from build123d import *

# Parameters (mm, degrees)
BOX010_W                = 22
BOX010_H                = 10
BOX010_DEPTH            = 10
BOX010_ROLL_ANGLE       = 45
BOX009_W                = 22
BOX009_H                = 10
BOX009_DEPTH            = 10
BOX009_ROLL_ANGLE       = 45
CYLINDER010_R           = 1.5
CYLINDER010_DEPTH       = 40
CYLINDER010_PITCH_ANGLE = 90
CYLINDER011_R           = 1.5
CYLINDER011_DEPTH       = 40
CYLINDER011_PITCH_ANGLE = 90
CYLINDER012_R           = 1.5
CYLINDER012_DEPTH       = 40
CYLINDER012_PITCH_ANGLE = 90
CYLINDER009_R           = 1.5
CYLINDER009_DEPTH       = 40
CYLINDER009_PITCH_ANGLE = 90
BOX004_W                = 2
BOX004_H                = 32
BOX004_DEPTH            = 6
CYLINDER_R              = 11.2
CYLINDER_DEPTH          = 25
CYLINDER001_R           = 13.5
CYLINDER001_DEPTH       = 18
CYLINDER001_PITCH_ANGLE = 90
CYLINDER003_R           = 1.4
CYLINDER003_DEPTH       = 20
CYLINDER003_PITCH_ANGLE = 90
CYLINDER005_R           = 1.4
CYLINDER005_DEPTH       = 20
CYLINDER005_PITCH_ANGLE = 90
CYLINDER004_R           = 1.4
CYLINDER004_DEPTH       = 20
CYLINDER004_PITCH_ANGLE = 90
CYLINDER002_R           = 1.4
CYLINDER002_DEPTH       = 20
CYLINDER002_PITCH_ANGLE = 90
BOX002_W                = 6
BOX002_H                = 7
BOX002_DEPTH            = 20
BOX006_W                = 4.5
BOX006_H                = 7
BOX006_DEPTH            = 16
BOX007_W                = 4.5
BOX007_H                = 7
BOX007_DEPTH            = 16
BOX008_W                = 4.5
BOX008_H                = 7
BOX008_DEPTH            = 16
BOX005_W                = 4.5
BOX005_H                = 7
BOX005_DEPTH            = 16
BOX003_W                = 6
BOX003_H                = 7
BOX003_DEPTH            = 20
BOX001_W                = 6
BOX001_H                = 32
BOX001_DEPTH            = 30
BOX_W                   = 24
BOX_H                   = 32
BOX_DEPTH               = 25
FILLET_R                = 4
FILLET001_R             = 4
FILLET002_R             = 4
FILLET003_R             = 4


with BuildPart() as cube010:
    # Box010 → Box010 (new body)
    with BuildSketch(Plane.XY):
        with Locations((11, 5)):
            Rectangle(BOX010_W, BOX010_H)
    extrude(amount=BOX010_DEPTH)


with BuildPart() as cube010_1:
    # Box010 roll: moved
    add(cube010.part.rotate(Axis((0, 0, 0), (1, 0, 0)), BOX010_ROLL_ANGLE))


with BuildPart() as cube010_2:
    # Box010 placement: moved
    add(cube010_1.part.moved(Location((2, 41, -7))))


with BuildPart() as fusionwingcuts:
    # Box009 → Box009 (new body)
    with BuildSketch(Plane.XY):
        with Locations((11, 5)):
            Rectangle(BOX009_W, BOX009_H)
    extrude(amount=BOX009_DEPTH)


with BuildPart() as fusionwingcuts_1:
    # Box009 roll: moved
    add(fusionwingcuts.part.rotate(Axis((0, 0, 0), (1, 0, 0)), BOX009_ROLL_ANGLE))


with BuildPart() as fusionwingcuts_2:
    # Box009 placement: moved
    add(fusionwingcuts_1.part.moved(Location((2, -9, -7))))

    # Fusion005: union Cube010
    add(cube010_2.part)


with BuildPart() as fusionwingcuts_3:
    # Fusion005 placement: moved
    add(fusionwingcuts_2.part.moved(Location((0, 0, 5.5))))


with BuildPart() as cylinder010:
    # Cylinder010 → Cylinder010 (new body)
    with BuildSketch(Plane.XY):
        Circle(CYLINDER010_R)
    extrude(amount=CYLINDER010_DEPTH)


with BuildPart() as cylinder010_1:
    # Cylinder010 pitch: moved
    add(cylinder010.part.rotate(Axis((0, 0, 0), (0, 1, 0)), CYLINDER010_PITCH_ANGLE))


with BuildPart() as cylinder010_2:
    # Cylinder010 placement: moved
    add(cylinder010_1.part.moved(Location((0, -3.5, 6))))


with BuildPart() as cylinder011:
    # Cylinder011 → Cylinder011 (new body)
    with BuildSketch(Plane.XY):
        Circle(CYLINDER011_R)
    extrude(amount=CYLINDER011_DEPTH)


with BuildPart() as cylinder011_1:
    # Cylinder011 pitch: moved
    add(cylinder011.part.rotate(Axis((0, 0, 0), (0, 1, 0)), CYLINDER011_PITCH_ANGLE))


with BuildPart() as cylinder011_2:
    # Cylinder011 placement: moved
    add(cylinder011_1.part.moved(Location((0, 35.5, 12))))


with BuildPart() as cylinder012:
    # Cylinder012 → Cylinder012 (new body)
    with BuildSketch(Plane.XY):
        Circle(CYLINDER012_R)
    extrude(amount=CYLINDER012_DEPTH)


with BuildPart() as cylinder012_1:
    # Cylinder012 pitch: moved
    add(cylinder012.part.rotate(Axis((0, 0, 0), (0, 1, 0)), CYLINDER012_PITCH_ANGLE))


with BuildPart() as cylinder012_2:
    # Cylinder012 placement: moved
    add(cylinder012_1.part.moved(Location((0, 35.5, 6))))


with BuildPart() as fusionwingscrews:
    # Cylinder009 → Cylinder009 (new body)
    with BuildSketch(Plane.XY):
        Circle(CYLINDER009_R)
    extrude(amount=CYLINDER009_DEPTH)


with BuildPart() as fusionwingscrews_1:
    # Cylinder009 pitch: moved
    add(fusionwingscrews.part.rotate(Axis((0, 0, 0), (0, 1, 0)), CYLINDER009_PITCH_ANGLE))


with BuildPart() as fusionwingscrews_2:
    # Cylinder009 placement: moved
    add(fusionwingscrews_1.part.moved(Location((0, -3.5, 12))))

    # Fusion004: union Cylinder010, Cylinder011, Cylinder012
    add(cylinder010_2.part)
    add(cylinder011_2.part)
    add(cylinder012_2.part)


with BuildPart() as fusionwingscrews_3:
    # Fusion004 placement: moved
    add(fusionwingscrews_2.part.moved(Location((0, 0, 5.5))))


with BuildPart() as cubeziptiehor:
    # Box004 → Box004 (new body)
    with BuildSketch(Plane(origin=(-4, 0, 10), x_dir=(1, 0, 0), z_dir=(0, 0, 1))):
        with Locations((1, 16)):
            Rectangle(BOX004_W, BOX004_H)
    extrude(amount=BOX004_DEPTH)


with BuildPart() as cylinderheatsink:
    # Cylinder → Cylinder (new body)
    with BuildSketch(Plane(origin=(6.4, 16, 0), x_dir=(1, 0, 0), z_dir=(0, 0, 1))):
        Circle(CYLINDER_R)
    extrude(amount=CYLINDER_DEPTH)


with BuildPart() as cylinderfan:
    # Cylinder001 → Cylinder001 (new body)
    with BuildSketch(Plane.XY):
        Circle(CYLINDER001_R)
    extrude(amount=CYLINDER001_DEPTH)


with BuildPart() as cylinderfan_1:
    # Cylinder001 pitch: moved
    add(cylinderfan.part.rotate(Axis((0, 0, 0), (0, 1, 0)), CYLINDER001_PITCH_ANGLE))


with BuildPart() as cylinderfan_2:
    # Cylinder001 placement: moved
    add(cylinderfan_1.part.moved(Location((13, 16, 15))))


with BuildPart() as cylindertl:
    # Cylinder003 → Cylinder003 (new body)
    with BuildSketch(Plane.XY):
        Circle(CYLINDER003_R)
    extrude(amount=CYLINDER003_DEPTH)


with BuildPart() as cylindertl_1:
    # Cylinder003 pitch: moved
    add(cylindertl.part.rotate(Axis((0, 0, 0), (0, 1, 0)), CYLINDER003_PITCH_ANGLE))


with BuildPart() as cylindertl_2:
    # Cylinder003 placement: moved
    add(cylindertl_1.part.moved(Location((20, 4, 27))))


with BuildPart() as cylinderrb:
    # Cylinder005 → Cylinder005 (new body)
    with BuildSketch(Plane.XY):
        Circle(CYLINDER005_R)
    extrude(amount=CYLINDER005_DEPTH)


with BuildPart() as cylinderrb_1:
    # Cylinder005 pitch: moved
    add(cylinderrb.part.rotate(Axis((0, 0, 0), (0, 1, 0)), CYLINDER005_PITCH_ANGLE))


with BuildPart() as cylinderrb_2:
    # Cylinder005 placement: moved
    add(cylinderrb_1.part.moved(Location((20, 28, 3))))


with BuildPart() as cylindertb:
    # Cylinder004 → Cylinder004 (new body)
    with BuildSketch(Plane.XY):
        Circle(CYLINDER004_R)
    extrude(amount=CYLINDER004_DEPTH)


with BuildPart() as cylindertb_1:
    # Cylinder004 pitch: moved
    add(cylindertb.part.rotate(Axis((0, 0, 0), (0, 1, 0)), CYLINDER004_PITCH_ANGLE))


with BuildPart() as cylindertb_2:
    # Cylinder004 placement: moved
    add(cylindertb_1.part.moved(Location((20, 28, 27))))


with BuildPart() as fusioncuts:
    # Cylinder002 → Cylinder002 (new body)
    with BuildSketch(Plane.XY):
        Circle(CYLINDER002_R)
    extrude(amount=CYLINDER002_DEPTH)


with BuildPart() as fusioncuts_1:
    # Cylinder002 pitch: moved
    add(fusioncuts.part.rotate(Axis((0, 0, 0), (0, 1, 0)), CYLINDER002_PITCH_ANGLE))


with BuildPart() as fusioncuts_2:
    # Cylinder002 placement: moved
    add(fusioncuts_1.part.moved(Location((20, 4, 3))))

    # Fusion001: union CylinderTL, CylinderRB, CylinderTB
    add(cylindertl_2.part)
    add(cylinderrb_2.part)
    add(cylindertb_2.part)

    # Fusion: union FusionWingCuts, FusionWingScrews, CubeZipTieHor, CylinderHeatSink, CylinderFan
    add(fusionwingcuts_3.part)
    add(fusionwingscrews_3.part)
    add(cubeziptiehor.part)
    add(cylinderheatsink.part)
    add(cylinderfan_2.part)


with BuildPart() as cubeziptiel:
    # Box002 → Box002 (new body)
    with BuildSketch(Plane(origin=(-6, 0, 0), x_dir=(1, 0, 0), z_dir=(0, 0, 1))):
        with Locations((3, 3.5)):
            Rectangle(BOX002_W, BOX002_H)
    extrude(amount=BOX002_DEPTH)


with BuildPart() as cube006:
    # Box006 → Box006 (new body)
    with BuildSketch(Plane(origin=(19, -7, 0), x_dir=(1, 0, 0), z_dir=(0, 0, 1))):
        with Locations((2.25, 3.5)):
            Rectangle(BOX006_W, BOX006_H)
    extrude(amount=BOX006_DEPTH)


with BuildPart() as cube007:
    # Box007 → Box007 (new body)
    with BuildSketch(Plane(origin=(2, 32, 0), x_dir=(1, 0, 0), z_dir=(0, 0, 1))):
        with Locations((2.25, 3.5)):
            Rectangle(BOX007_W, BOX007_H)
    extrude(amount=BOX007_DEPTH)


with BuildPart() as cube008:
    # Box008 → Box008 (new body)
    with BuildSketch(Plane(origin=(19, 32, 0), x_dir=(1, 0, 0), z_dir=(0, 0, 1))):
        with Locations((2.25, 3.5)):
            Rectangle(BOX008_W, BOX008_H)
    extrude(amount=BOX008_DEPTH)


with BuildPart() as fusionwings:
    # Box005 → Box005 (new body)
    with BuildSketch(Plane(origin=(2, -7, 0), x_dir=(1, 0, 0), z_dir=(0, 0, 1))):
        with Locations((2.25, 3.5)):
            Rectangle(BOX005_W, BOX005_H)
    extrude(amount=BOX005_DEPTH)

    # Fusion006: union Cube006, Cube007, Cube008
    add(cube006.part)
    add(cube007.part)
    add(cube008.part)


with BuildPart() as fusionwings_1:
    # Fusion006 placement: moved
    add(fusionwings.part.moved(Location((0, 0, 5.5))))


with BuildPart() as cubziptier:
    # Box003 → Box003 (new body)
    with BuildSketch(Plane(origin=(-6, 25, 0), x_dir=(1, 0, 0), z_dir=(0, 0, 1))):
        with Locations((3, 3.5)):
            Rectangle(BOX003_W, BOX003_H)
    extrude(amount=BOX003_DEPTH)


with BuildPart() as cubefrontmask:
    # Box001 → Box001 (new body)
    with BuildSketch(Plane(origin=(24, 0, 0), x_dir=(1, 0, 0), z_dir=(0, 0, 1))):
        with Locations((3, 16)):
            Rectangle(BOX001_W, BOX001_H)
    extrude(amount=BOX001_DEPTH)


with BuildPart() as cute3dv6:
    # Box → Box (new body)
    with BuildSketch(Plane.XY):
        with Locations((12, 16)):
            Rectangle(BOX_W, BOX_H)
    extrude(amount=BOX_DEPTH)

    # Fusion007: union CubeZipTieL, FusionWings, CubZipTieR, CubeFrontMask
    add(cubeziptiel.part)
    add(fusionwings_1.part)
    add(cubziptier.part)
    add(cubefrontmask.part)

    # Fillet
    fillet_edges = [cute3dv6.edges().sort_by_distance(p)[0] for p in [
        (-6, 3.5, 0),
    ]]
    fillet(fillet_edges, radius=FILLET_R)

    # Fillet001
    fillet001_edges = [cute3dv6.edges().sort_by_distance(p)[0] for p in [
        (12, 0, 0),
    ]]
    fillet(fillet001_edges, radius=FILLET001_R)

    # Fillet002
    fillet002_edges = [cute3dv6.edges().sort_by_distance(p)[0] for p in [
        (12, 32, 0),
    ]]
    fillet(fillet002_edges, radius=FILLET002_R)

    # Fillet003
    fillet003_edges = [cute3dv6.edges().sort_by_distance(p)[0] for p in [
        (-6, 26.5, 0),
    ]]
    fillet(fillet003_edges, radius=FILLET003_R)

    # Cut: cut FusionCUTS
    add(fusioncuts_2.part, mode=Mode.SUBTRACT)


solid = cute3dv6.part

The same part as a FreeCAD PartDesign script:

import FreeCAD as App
import Part
import Sketcher

V = App.Vector


def edges_at(feature, points):
    """Names of the edges that pass closest to the given points."""
    edges = feature.Shape.Edges
    near = lambda p: min(range(len(edges)), key=lambda i: edges[i].distToShape(Part.Vertex(*p))[0])
    return sorted({f"Edge{near(p) + 1}" for p in points})

doc = App.newDocument("Part")
body = doc.addObject("PartDesign::Body", "Body")

# Sketch on XY plane
sketch1 = body.newObject("Sketcher::SketchObject", "Sketch")
sketch1.AttachmentSupport = (doc.getObject("XY_Plane"), [""])
sketch1.MapMode = "FlatFace"
sketch1.addGeometry(Part.LineSegment(V(0, 10, 0), V(0, 0, 0)), False)
sketch1.addGeometry(Part.LineSegment(V(0, 0, 0), V(22, 0, 0)), False)
sketch1.addGeometry(Part.LineSegment(V(22, 0, 0), V(22, 10, 0)), False)
sketch1.addGeometry(Part.LineSegment(V(22, 10, 0), V(0, 10, 0)), False)
sketch1.addConstraint(Sketcher.Constraint("Coincident", 0, 2, 1, 1))
sketch1.addConstraint(Sketcher.Constraint("Coincident", 1, 2, 2, 1))
sketch1.addConstraint(Sketcher.Constraint("Coincident", 2, 2, 3, 1))
sketch1.addConstraint(Sketcher.Constraint("Coincident", 3, 2, 0, 1))
sketch1.addConstraint(Sketcher.Constraint("Vertical", 0))
sketch1.addConstraint(Sketcher.Constraint("Horizontal", 1))
sketch1.addConstraint(Sketcher.Constraint("Vertical", 2))
sketch1.addConstraint(Sketcher.Constraint("Horizontal", 3))
sketch1.addConstraint(Sketcher.Constraint("Coincident", 0, 2, -1, 1))
sketch1.addConstraint(Sketcher.Constraint("DistanceX", 1, 1, 1, 2, 22.0))
sketch1.addConstraint(Sketcher.Constraint("DistanceY", 0, 2, 0, 1, 10.0))
pad1 = body.newObject("PartDesign::Pad", "Pad")
pad1.Profile = sketch1
pad1.Length = 10
body2 = doc.addObject("PartDesign::Body", "Body001")
doc.recompute()

body.Placement = App.Placement(V(0, 0, 0), App.Rotation(V(1, 0, 0), 45))
boolean = body2.newObject("PartDesign::Boolean", "Boolean")
boolean.Type = "Fuse"
boolean.addObjects([body])
body3 = doc.addObject("PartDesign::Body", "Body002")
doc.recompute()

body2.Placement = App.Placement(V(2, 41, -7), App.Rotation(V(0, 0, 1), 0))
boolean2 = body3.newObject("PartDesign::Boolean", "Boolean001")
boolean2.Type = "Fuse"
boolean2.addObjects([body2])
body4 = doc.addObject("PartDesign::Body", "Body003")

# Sketch on XY plane
sketch2 = body4.newObject("Sketcher::SketchObject", "Sketch001")
sketch2.AttachmentSupport = (doc.getObject("XY_Plane003"), [""])
sketch2.MapMode = "FlatFace"
sketch2.addGeometry(Part.LineSegment(V(0, 10, 0), V(0, 0, 0)), False)
sketch2.addGeometry(Part.LineSegment(V(0, 0, 0), V(22, 0, 0)), False)
sketch2.addGeometry(Part.LineSegment(V(22, 0, 0), V(22, 10, 0)), False)
sketch2.addGeometry(Part.LineSegment(V(22, 10, 0), V(0, 10, 0)), False)
sketch2.addConstraint(Sketcher.Constraint("Coincident", 0, 2, 1, 1))
sketch2.addConstraint(Sketcher.Constraint("Coincident", 1, 2, 2, 1))
sketch2.addConstraint(Sketcher.Constraint("Coincident", 2, 2, 3, 1))
sketch2.addConstraint(Sketcher.Constraint("Coincident", 3, 2, 0, 1))
sketch2.addConstraint(Sketcher.Constraint("Vertical", 0))
sketch2.addConstraint(Sketcher.Constraint("Horizontal", 1))
sketch2.addConstraint(Sketcher.Constraint("Vertical", 2))
sketch2.addConstraint(Sketcher.Constraint("Horizontal", 3))
sketch2.addConstraint(Sketcher.Constraint("Coincident", 0, 2, -1, 1))
sketch2.addConstraint(Sketcher.Constraint("DistanceX", 1, 1, 1, 2, 22.0))
sketch2.addConstraint(Sketcher.Constraint("DistanceY", 0, 2, 0, 1, 10.0))
pad2 = body4.newObject("PartDesign::Pad", "Pad001")
pad2.Profile = sketch2
pad2.Length = 10
body5 = doc.addObject("PartDesign::Body", "Body004")
doc.recompute()

body4.Placement = App.Placement(V(0, 0, 0), App.Rotation(V(1, 0, 0), 45))
boolean3 = body5.newObject("PartDesign::Boolean", "Boolean002")
boolean3.Type = "Fuse"
boolean3.addObjects([body4])
body6 = doc.addObject("PartDesign::Body", "Body005")
body6.AllowCompound = True
doc.recompute()

body5.Placement = App.Placement(V(2, -9, -7), App.Rotation(V(0, 0, 1), 0))
boolean4 = body6.newObject("PartDesign::Boolean", "Boolean003")
boolean4.Type = "Fuse"
boolean4.addObjects([body5])
doc.recompute()

boolean5 = body6.newObject("PartDesign::Boolean", "Boolean004")
boolean5.Type = "Fuse"
boolean5.addObjects([body3])
body7 = doc.addObject("PartDesign::Body", "Body006")
body7.AllowCompound = True
doc.recompute()

body6.Placement = App.Placement(V(0, 0, 5.5), App.Rotation(V(0, 0, 1), 0))
boolean6 = body7.newObject("PartDesign::Boolean", "Boolean005")
boolean6.Type = "Fuse"
boolean6.addObjects([body6])
body8 = doc.addObject("PartDesign::Body", "Body007")

# Sketch on XY plane
sketch3 = body8.newObject("Sketcher::SketchObject", "Sketch002")
sketch3.AttachmentSupport = (doc.getObject("XY_Plane007"), [""])
sketch3.MapMode = "FlatFace"
sketch3.addGeometry(Part.Circle(V(0, 0, 0), V(0, 0, 1), 1.5), False)
sketch3.addConstraint(Sketcher.Constraint("Coincident", 0, 3, -1, 1))
sketch3.addConstraint(Sketcher.Constraint("Diameter", 0, 3.0))
pad3 = body8.newObject("PartDesign::Pad", "Pad002")
pad3.Profile = sketch3
pad3.Length = 40
body9 = doc.addObject("PartDesign::Body", "Body008")
doc.recompute()

body8.Placement = App.Placement(V(0, 0, 0), App.Rotation(V(0, 1, 0), 90))
boolean7 = body9.newObject("PartDesign::Boolean", "Boolean006")
boolean7.Type = "Fuse"
boolean7.addObjects([body8])
body10 = doc.addObject("PartDesign::Body", "Body009")
doc.recompute()

body9.Placement = App.Placement(V(0, -3.5, 6), App.Rotation(V(0, 0, 1), 0))
boolean8 = body10.newObject("PartDesign::Boolean", "Boolean007")
boolean8.Type = "Fuse"
boolean8.addObjects([body9])
body11 = doc.addObject("PartDesign::Body", "Body010")

# Sketch on XY plane
sketch4 = body11.newObject("Sketcher::SketchObject", "Sketch003")
sketch4.AttachmentSupport = (doc.getObject("XY_Plane010"), [""])
sketch4.MapMode = "FlatFace"
sketch4.addGeometry(Part.Circle(V(0, 0, 0), V(0, 0, 1), 1.5), False)
sketch4.addConstraint(Sketcher.Constraint("Coincident", 0, 3, -1, 1))
sketch4.addConstraint(Sketcher.Constraint("Diameter", 0, 3.0))
pad4 = body11.newObject("PartDesign::Pad", "Pad003")
pad4.Profile = sketch4
pad4.Length = 40
body12 = doc.addObject("PartDesign::Body", "Body011")
doc.recompute()

body11.Placement = App.Placement(V(0, 0, 0), App.Rotation(V(0, 1, 0), 90))
boolean9 = body12.newObject("PartDesign::Boolean", "Boolean008")
boolean9.Type = "Fuse"
boolean9.addObjects([body11])
body13 = doc.addObject("PartDesign::Body", "Body012")
doc.recompute()

body12.Placement = App.Placement(V(0, 35.5, 12), App.Rotation(V(0, 0, 1), 0))
boolean10 = body13.newObject("PartDesign::Boolean", "Boolean009")
boolean10.Type = "Fuse"
boolean10.addObjects([body12])
body14 = doc.addObject("PartDesign::Body", "Body013")

# Sketch on XY plane
sketch5 = body14.newObject("Sketcher::SketchObject", "Sketch004")
sketch5.AttachmentSupport = (doc.getObject("XY_Plane013"), [""])
sketch5.MapMode = "FlatFace"
sketch5.addGeometry(Part.Circle(V(0, 0, 0), V(0, 0, 1), 1.5), False)
sketch5.addConstraint(Sketcher.Constraint("Coincident", 0, 3, -1, 1))
sketch5.addConstraint(Sketcher.Constraint("Diameter", 0, 3.0))
pad5 = body14.newObject("PartDesign::Pad", "Pad004")
pad5.Profile = sketch5
pad5.Length = 40
body15 = doc.addObject("PartDesign::Body", "Body014")
doc.recompute()

body14.Placement = App.Placement(V(0, 0, 0), App.Rotation(V(0, 1, 0), 90))
boolean11 = body15.newObject("PartDesign::Boolean", "Boolean010")
boolean11.Type = "Fuse"
boolean11.addObjects([body14])
body16 = doc.addObject("PartDesign::Body", "Body015")
doc.recompute()

body15.Placement = App.Placement(V(0, 35.5, 6), App.Rotation(V(0, 0, 1), 0))
boolean12 = body16.newObject("PartDesign::Boolean", "Boolean011")
boolean12.Type = "Fuse"
boolean12.addObjects([body15])
body17 = doc.addObject("PartDesign::Body", "Body016")

# Sketch on XY plane
sketch6 = body17.newObject("Sketcher::SketchObject", "Sketch005")
sketch6.AttachmentSupport = (doc.getObject("XY_Plane016"), [""])
sketch6.MapMode = "FlatFace"
sketch6.addGeometry(Part.Circle(V(0, 0, 0), V(0, 0, 1), 1.5), False)
sketch6.addConstraint(Sketcher.Constraint("Coincident", 0, 3, -1, 1))
sketch6.addConstraint(Sketcher.Constraint("Diameter", 0, 3.0))
pad6 = body17.newObject("PartDesign::Pad", "Pad005")
pad6.Profile = sketch6
pad6.Length = 40
body18 = doc.addObject("PartDesign::Body", "Body017")
doc.recompute()

body17.Placement = App.Placement(V(0, 0, 0), App.Rotation(V(0, 1, 0), 90))
boolean13 = body18.newObject("PartDesign::Boolean", "Boolean012")
boolean13.Type = "Fuse"
boolean13.addObjects([body17])
body19 = doc.addObject("PartDesign::Body", "Body018")
body19.AllowCompound = True
doc.recompute()

body18.Placement = App.Placement(V(0, -3.5, 12), App.Rotation(V(0, 0, 1), 0))
boolean14 = body19.newObject("PartDesign::Boolean", "Boolean013")
boolean14.Type = "Fuse"
boolean14.addObjects([body18])
doc.recompute()

boolean15 = body19.newObject("PartDesign::Boolean", "Boolean014")
boolean15.Type = "Fuse"
boolean15.addObjects([body10])
doc.recompute()

boolean16 = body19.newObject("PartDesign::Boolean", "Boolean015")
boolean16.Type = "Fuse"
boolean16.addObjects([body13])
doc.recompute()

boolean17 = body19.newObject("PartDesign::Boolean", "Boolean016")
boolean17.Type = "Fuse"
boolean17.addObjects([body16])
body20 = doc.addObject("PartDesign::Body", "Body019")
body20.AllowCompound = True
doc.recompute()

body19.Placement = App.Placement(V(0, 0, 5.5), App.Rotation(V(0, 0, 1), 0))
boolean18 = body20.newObject("PartDesign::Boolean", "Boolean017")
boolean18.Type = "Fuse"
boolean18.addObjects([body19])
body21 = doc.addObject("PartDesign::Body", "Body020")

# Sketch on XY plane
sketch7 = body21.newObject("Sketcher::SketchObject", "Sketch006")
sketch7.AttachmentSupport = (doc.getObject("XY_Plane020"), [""])
sketch7.MapMode = "FlatFace"
sketch7.AttachmentOffset = App.Placement(V(0, 0, 10), App.Rotation())
sketch7.addGeometry(Part.LineSegment(V(-4, 32, 0), V(-4, 0, 0)), False)
sketch7.addGeometry(Part.LineSegment(V(-4, 0, 0), V(-2, 0, 0)), False)
sketch7.addGeometry(Part.LineSegment(V(-2, 0, 0), V(-2, 32, 0)), False)
sketch7.addGeometry(Part.LineSegment(V(-2, 32, 0), V(-4, 32, 0)), False)
sketch7.addConstraint(Sketcher.Constraint("Coincident", 0, 2, 1, 1))
sketch7.addConstraint(Sketcher.Constraint("Coincident", 1, 2, 2, 1))
sketch7.addConstraint(Sketcher.Constraint("Coincident", 2, 2, 3, 1))
sketch7.addConstraint(Sketcher.Constraint("Coincident", 3, 2, 0, 1))
sketch7.addConstraint(Sketcher.Constraint("Vertical", 0))
sketch7.addConstraint(Sketcher.Constraint("Horizontal", 1))
sketch7.addConstraint(Sketcher.Constraint("Vertical", 2))
sketch7.addConstraint(Sketcher.Constraint("Horizontal", 3))
sketch7.addConstraint(Sketcher.Constraint("PointOnObject", 0, 2, -1))
sketch7.addConstraint(Sketcher.Constraint("DistanceX", 1, 1, 1, 2, 2.0))
sketch7.addConstraint(Sketcher.Constraint("DistanceY", 0, 2, 0, 1, 32.0))
sketch7.addConstraint(Sketcher.Constraint("DistanceX", 0, 2, -1, 1, 4.0))
pad7 = body21.newObject("PartDesign::Pad", "Pad006")
pad7.Profile = sketch7
pad7.Length = 6
body22 = doc.addObject("PartDesign::Body", "Body021")

# Sketch on XY plane
sketch8 = body22.newObject("Sketcher::SketchObject", "Sketch007")
sketch8.AttachmentSupport = (doc.getObject("XY_Plane021"), [""])
sketch8.MapMode = "FlatFace"
sketch8.addGeometry(Part.Circle(V(6, 16, 0), V(0, 0, 1), 11), False)
sketch8.addConstraint(Sketcher.Constraint("Diameter", 0, 22.4))
sketch8.addConstraint(Sketcher.Constraint("DistanceY", -1, 1, 0, 3, 16.0))
sketch8.addConstraint(Sketcher.Constraint("DistanceX", -1, 1, 0, 3, 6.4))
pad8 = body22.newObject("PartDesign::Pad", "Pad007")
pad8.Profile = sketch8
pad8.Length = 25
body23 = doc.addObject("PartDesign::Body", "Body022")

# Sketch on XY plane
sketch9 = body23.newObject("Sketcher::SketchObject", "Sketch008")
sketch9.AttachmentSupport = (doc.getObject("XY_Plane022"), [""])
sketch9.MapMode = "FlatFace"
sketch9.addGeometry(Part.Circle(V(0, 0, 0), V(0, 0, 1), 14), False)
sketch9.addConstraint(Sketcher.Constraint("Coincident", 0, 3, -1, 1))
sketch9.addConstraint(Sketcher.Constraint("Diameter", 0, 27.0))
pad9 = body23.newObject("PartDesign::Pad", "Pad008")
pad9.Profile = sketch9
pad9.Length = 18
body24 = doc.addObject("PartDesign::Body", "Body023")
doc.recompute()

body23.Placement = App.Placement(V(0, 0, 0), App.Rotation(V(0, 1, 0), 90))
boolean19 = body24.newObject("PartDesign::Boolean", "Boolean018")
boolean19.Type = "Fuse"
boolean19.addObjects([body23])
body25 = doc.addObject("PartDesign::Body", "Body024")
doc.recompute()

body24.Placement = App.Placement(V(13, 16, 15), App.Rotation(V(0, 0, 1), 0))
boolean20 = body25.newObject("PartDesign::Boolean", "Boolean019")
boolean20.Type = "Fuse"
boolean20.addObjects([body24])
body26 = doc.addObject("PartDesign::Body", "Body025")

# Sketch on XY plane
sketch10 = body26.newObject("Sketcher::SketchObject", "Sketch009")
sketch10.AttachmentSupport = (doc.getObject("XY_Plane025"), [""])
sketch10.MapMode = "FlatFace"
sketch10.addGeometry(Part.Circle(V(0, 0, 0), V(0, 0, 1), 1.4), False)
sketch10.addConstraint(Sketcher.Constraint("Coincident", 0, 3, -1, 1))
sketch10.addConstraint(Sketcher.Constraint("Diameter", 0, 2.8))
pad10 = body26.newObject("PartDesign::Pad", "Pad009")
pad10.Profile = sketch10
pad10.Length = 20
body27 = doc.addObject("PartDesign::Body", "Body026")
doc.recompute()

body26.Placement = App.Placement(V(0, 0, 0), App.Rotation(V(0, 1, 0), 90))
boolean21 = body27.newObject("PartDesign::Boolean", "Boolean020")
boolean21.Type = "Fuse"
boolean21.addObjects([body26])
body28 = doc.addObject("PartDesign::Body", "Body027")
doc.recompute()

body27.Placement = App.Placement(V(20, 4, 27), App.Rotation(V(0, 0, 1), 0))
boolean22 = body28.newObject("PartDesign::Boolean", "Boolean021")
boolean22.Type = "Fuse"
boolean22.addObjects([body27])
body29 = doc.addObject("PartDesign::Body", "Body028")

# Sketch on XY plane
sketch11 = body29.newObject("Sketcher::SketchObject", "Sketch010")
sketch11.AttachmentSupport = (doc.getObject("XY_Plane028"), [""])
sketch11.MapMode = "FlatFace"
sketch11.addGeometry(Part.Circle(V(0, 0, 0), V(0, 0, 1), 1.4), False)
sketch11.addConstraint(Sketcher.Constraint("Coincident", 0, 3, -1, 1))
sketch11.addConstraint(Sketcher.Constraint("Diameter", 0, 2.8))
pad11 = body29.newObject("PartDesign::Pad", "Pad010")
pad11.Profile = sketch11
pad11.Length = 20
body30 = doc.addObject("PartDesign::Body", "Body029")
doc.recompute()

body29.Placement = App.Placement(V(0, 0, 0), App.Rotation(V(0, 1, 0), 90))
boolean23 = body30.newObject("PartDesign::Boolean", "Boolean022")
boolean23.Type = "Fuse"
boolean23.addObjects([body29])
body31 = doc.addObject("PartDesign::Body", "Body030")
doc.recompute()

body30.Placement = App.Placement(V(20, 28, 3), App.Rotation(V(0, 0, 1), 0))
boolean24 = body31.newObject("PartDesign::Boolean", "Boolean023")
boolean24.Type = "Fuse"
boolean24.addObjects([body30])
body32 = doc.addObject("PartDesign::Body", "Body031")

# Sketch on XY plane
sketch12 = body32.newObject("Sketcher::SketchObject", "Sketch011")
sketch12.AttachmentSupport = (doc.getObject("XY_Plane031"), [""])
sketch12.MapMode = "FlatFace"
sketch12.addGeometry(Part.Circle(V(0, 0, 0), V(0, 0, 1), 1.4), False)
sketch12.addConstraint(Sketcher.Constraint("Coincident", 0, 3, -1, 1))
sketch12.addConstraint(Sketcher.Constraint("Diameter", 0, 2.8))
pad12 = body32.newObject("PartDesign::Pad", "Pad011")
pad12.Profile = sketch12
pad12.Length = 20
body33 = doc.addObject("PartDesign::Body", "Body032")
doc.recompute()

body32.Placement = App.Placement(V(0, 0, 0), App.Rotation(V(0, 1, 0), 90))
boolean25 = body33.newObject("PartDesign::Boolean", "Boolean024")
boolean25.Type = "Fuse"
boolean25.addObjects([body32])
body34 = doc.addObject("PartDesign::Body", "Body033")
doc.recompute()

body33.Placement = App.Placement(V(20, 28, 27), App.Rotation(V(0, 0, 1), 0))
boolean26 = body34.newObject("PartDesign::Boolean", "Boolean025")
boolean26.Type = "Fuse"
boolean26.addObjects([body33])
body35 = doc.addObject("PartDesign::Body", "Body034")

# Sketch on XY plane
sketch13 = body35.newObject("Sketcher::SketchObject", "Sketch012")
sketch13.AttachmentSupport = (doc.getObject("XY_Plane034"), [""])
sketch13.MapMode = "FlatFace"
sketch13.addGeometry(Part.Circle(V(0, 0, 0), V(0, 0, 1), 1.4), False)
sketch13.addConstraint(Sketcher.Constraint("Coincident", 0, 3, -1, 1))
sketch13.addConstraint(Sketcher.Constraint("Diameter", 0, 2.8))
pad13 = body35.newObject("PartDesign::Pad", "Pad012")
pad13.Profile = sketch13
pad13.Length = 20
body36 = doc.addObject("PartDesign::Body", "Body035")
doc.recompute()

body35.Placement = App.Placement(V(0, 0, 0), App.Rotation(V(0, 1, 0), 90))
boolean27 = body36.newObject("PartDesign::Boolean", "Boolean026")
boolean27.Type = "Fuse"
boolean27.addObjects([body35])
body37 = doc.addObject("PartDesign::Body", "Body036")
body37.AllowCompound = True
doc.recompute()

body36.Placement = App.Placement(V(20, 4, 3), App.Rotation(V(0, 0, 1), 0))
boolean28 = body37.newObject("PartDesign::Boolean", "Boolean027")
boolean28.Type = "Fuse"
boolean28.addObjects([body36])
doc.recompute()

boolean29 = body37.newObject("PartDesign::Boolean", "Boolean028")
boolean29.Type = "Fuse"
boolean29.addObjects([body28])
doc.recompute()

boolean30 = body37.newObject("PartDesign::Boolean", "Boolean029")
boolean30.Type = "Fuse"
boolean30.addObjects([body31])
doc.recompute()

boolean31 = body37.newObject("PartDesign::Boolean", "Boolean030")
boolean31.Type = "Fuse"
boolean31.addObjects([body34])
doc.recompute()

boolean32 = body37.newObject("PartDesign::Boolean", "Boolean031")
boolean32.Type = "Fuse"
boolean32.addObjects([body7])
doc.recompute()

boolean33 = body37.newObject("PartDesign::Boolean", "Boolean032")
boolean33.Type = "Fuse"
boolean33.addObjects([body20])
doc.recompute()

boolean34 = body37.newObject("PartDesign::Boolean", "Boolean033")
boolean34.Type = "Fuse"
boolean34.addObjects([body21])
doc.recompute()

boolean35 = body37.newObject("PartDesign::Boolean", "Boolean034")
boolean35.Type = "Fuse"
boolean35.addObjects([body22])
doc.recompute()

boolean36 = body37.newObject("PartDesign::Boolean", "Boolean035")
boolean36.Type = "Fuse"
boolean36.addObjects([body25])
body38 = doc.addObject("PartDesign::Body", "Body037")

# Sketch on XY plane
sketch14 = body38.newObject("Sketcher::SketchObject", "Sketch013")
sketch14.AttachmentSupport = (doc.getObject("XY_Plane037"), [""])
sketch14.MapMode = "FlatFace"
sketch14.addGeometry(Part.LineSegment(V(-6, 7, 0), V(-6, 0, 0)), False)
sketch14.addGeometry(Part.LineSegment(V(-6, 0, 0), V(0, 0, 0)), False)
sketch14.addGeometry(Part.LineSegment(V(0, 0, 0), V(0, 7, 0)), False)
sketch14.addGeometry(Part.LineSegment(V(0, 7, 0), V(-6, 7, 0)), False)
sketch14.addConstraint(Sketcher.Constraint("Coincident", 0, 2, 1, 1))
sketch14.addConstraint(Sketcher.Constraint("Coincident", 1, 2, 2, 1))
sketch14.addConstraint(Sketcher.Constraint("Coincident", 2, 2, 3, 1))
sketch14.addConstraint(Sketcher.Constraint("Coincident", 3, 2, 0, 1))
sketch14.addConstraint(Sketcher.Constraint("Vertical", 0))
sketch14.addConstraint(Sketcher.Constraint("Horizontal", 1))
sketch14.addConstraint(Sketcher.Constraint("Vertical", 2))
sketch14.addConstraint(Sketcher.Constraint("Horizontal", 3))
sketch14.addConstraint(Sketcher.Constraint("Coincident", 1, 2, -1, 1))
sketch14.addConstraint(Sketcher.Constraint("DistanceX", 1, 1, 1, 2, 6.0))
sketch14.addConstraint(Sketcher.Constraint("DistanceY", 0, 2, 0, 1, 7.0))
pad14 = body38.newObject("PartDesign::Pad", "Pad013")
pad14.Profile = sketch14
pad14.Length = 20
body39 = doc.addObject("PartDesign::Body", "Body038")

# Sketch on XY plane
sketch15 = body39.newObject("Sketcher::SketchObject", "Sketch014")
sketch15.AttachmentSupport = (doc.getObject("XY_Plane038"), [""])
sketch15.MapMode = "FlatFace"
sketch15.addGeometry(Part.LineSegment(V(19, 0, 0), V(19, -7, 0)), False)
sketch15.addGeometry(Part.LineSegment(V(19, -7, 0), V(23.5, -7, 0)), False)
sketch15.addGeometry(Part.LineSegment(V(23.5, -7, 0), V(23.5, 0, 0)), False)
sketch15.addGeometry(Part.LineSegment(V(23.5, 0, 0), V(19, 0, 0)), False)
sketch15.addConstraint(Sketcher.Constraint("Coincident", 0, 2, 1, 1))
sketch15.addConstraint(Sketcher.Constraint("Coincident", 1, 2, 2, 1))
sketch15.addConstraint(Sketcher.Constraint("Coincident", 2, 2, 3, 1))
sketch15.addConstraint(Sketcher.Constraint("Coincident", 3, 2, 0, 1))
sketch15.addConstraint(Sketcher.Constraint("Vertical", 0))
sketch15.addConstraint(Sketcher.Constraint("Horizontal", 1))
sketch15.addConstraint(Sketcher.Constraint("Vertical", 2))
sketch15.addConstraint(Sketcher.Constraint("Horizontal", 3))
sketch15.addConstraint(Sketcher.Constraint("PointOnObject", 2, 2, -1))
sketch15.addConstraint(Sketcher.Constraint("DistanceY", 0, 2, 0, 1, 7.0))
sketch15.addConstraint(Sketcher.Constraint("DistanceX", 1, 1, 1, 2, 4.5))
sketch15.addConstraint(Sketcher.Constraint("DistanceX", -1, 1, 0, 2, 19.0))
pad15 = body39.newObject("PartDesign::Pad", "Pad014")
pad15.Profile = sketch15
pad15.Length = 16
body40 = doc.addObject("PartDesign::Body", "Body039")

# Sketch on XY plane
sketch16 = body40.newObject("Sketcher::SketchObject", "Sketch015")
sketch16.AttachmentSupport = (doc.getObject("XY_Plane039"), [""])
sketch16.MapMode = "FlatFace"
sketch16.addGeometry(Part.LineSegment(V(2, 39, 0), V(2, 32, 0)), False)
sketch16.addGeometry(Part.LineSegment(V(2, 32, 0), V(6.5, 32, 0)), False)
sketch16.addGeometry(Part.LineSegment(V(6.5, 32, 0), V(6.5, 39, 0)), False)
sketch16.addGeometry(Part.LineSegment(V(6.5, 39, 0), V(2, 39, 0)), False)
sketch16.addConstraint(Sketcher.Constraint("Coincident", 0, 2, 1, 1))
sketch16.addConstraint(Sketcher.Constraint("Coincident", 1, 2, 2, 1))
sketch16.addConstraint(Sketcher.Constraint("Coincident", 2, 2, 3, 1))
sketch16.addConstraint(Sketcher.Constraint("Coincident", 3, 2, 0, 1))
sketch16.addConstraint(Sketcher.Constraint("Vertical", 0))
sketch16.addConstraint(Sketcher.Constraint("Horizontal", 1))
sketch16.addConstraint(Sketcher.Constraint("Vertical", 2))
sketch16.addConstraint(Sketcher.Constraint("Horizontal", 3))
sketch16.addConstraint(Sketcher.Constraint("DistanceY", 0, 2, 0, 1, 7.0))
sketch16.addConstraint(Sketcher.Constraint("DistanceX", 1, 1, 1, 2, 4.5))
sketch16.addConstraint(Sketcher.Constraint("DistanceX", -1, 1, 0, 2, 2.0))
sketch16.addConstraint(Sketcher.Constraint("DistanceY", -1, 1, 0, 2, 32.0))
pad16 = body40.newObject("PartDesign::Pad", "Pad015")
pad16.Profile = sketch16
pad16.Length = 16
body41 = doc.addObject("PartDesign::Body", "Body040")

# Sketch on XY plane
sketch17 = body41.newObject("Sketcher::SketchObject", "Sketch016")
sketch17.AttachmentSupport = (doc.getObject("XY_Plane040"), [""])
sketch17.MapMode = "FlatFace"
sketch17.addGeometry(Part.LineSegment(V(19, 39, 0), V(19, 32, 0)), False)
sketch17.addGeometry(Part.LineSegment(V(19, 32, 0), V(23.5, 32, 0)), False)
sketch17.addGeometry(Part.LineSegment(V(23.5, 32, 0), V(23.5, 39, 0)), False)
sketch17.addGeometry(Part.LineSegment(V(23.5, 39, 0), V(19, 39, 0)), False)
sketch17.addConstraint(Sketcher.Constraint("Coincident", 0, 2, 1, 1))
sketch17.addConstraint(Sketcher.Constraint("Coincident", 1, 2, 2, 1))
sketch17.addConstraint(Sketcher.Constraint("Coincident", 2, 2, 3, 1))
sketch17.addConstraint(Sketcher.Constraint("Coincident", 3, 2, 0, 1))
sketch17.addConstraint(Sketcher.Constraint("Vertical", 0))
sketch17.addConstraint(Sketcher.Constraint("Horizontal", 1))
sketch17.addConstraint(Sketcher.Constraint("Vertical", 2))
sketch17.addConstraint(Sketcher.Constraint("Horizontal", 3))
sketch17.addConstraint(Sketcher.Constraint("DistanceY", 0, 2, 0, 1, 7.0))
sketch17.addConstraint(Sketcher.Constraint("DistanceX", 1, 1, 1, 2, 4.5))
sketch17.addConstraint(Sketcher.Constraint("DistanceX", -1, 1, 0, 2, 19.0))
sketch17.addConstraint(Sketcher.Constraint("DistanceY", -1, 1, 0, 2, 32.0))
pad17 = body41.newObject("PartDesign::Pad", "Pad016")
pad17.Profile = sketch17
pad17.Length = 16
body42 = doc.addObject("PartDesign::Body", "Body041")
body42.AllowCompound = True

# Sketch on XY plane
sketch18 = body42.newObject("Sketcher::SketchObject", "Sketch017")
sketch18.AttachmentSupport = (doc.getObject("XY_Plane041"), [""])
sketch18.MapMode = "FlatFace"
sketch18.addGeometry(Part.LineSegment(V(2, 0, 0), V(2, -7, 0)), False)
sketch18.addGeometry(Part.LineSegment(V(2, -7, 0), V(6.5, -7, 0)), False)
sketch18.addGeometry(Part.LineSegment(V(6.5, -7, 0), V(6.5, 0, 0)), False)
sketch18.addGeometry(Part.LineSegment(V(6.5, 0, 0), V(2, 0, 0)), False)
sketch18.addConstraint(Sketcher.Constraint("Coincident", 0, 2, 1, 1))
sketch18.addConstraint(Sketcher.Constraint("Coincident", 1, 2, 2, 1))
sketch18.addConstraint(Sketcher.Constraint("Coincident", 2, 2, 3, 1))
sketch18.addConstraint(Sketcher.Constraint("Coincident", 3, 2, 0, 1))
sketch18.addConstraint(Sketcher.Constraint("Vertical", 0))
sketch18.addConstraint(Sketcher.Constraint("Horizontal", 1))
sketch18.addConstraint(Sketcher.Constraint("Vertical", 2))
sketch18.addConstraint(Sketcher.Constraint("Horizontal", 3))
sketch18.addConstraint(Sketcher.Constraint("PointOnObject", 2, 2, -1))
sketch18.addConstraint(Sketcher.Constraint("DistanceY", 0, 2, 0, 1, 7.0))
sketch18.addConstraint(Sketcher.Constraint("DistanceX", 1, 1, 1, 2, 4.5))
sketch18.addConstraint(Sketcher.Constraint("DistanceX", -1, 1, 0, 2, 2.0))
pad18 = body42.newObject("PartDesign::Pad", "Pad017")
pad18.Profile = sketch18
pad18.Length = 16
doc.recompute()

boolean37 = body42.newObject("PartDesign::Boolean", "Boolean036")
boolean37.Type = "Fuse"
boolean37.addObjects([body39])
doc.recompute()

boolean38 = body42.newObject("PartDesign::Boolean", "Boolean037")
boolean38.Type = "Fuse"
boolean38.addObjects([body40])
doc.recompute()

boolean39 = body42.newObject("PartDesign::Boolean", "Boolean038")
boolean39.Type = "Fuse"
boolean39.addObjects([body41])
body43 = doc.addObject("PartDesign::Body", "Body042")
body43.AllowCompound = True
doc.recompute()

body42.Placement = App.Placement(V(0, 0, 5.5), App.Rotation(V(0, 0, 1), 0))
boolean40 = body43.newObject("PartDesign::Boolean", "Boolean039")
boolean40.Type = "Fuse"
boolean40.addObjects([body42])
body44 = doc.addObject("PartDesign::Body", "Body043")

# Sketch on XY plane
sketch19 = body44.newObject("Sketcher::SketchObject", "Sketch018")
sketch19.AttachmentSupport = (doc.getObject("XY_Plane043"), [""])
sketch19.MapMode = "FlatFace"
sketch19.addGeometry(Part.LineSegment(V(-6, 32, 0), V(-6, 25, 0)), False)
sketch19.addGeometry(Part.LineSegment(V(-6, 25, 0), V(0, 25, 0)), False)
sketch19.addGeometry(Part.LineSegment(V(0, 25, 0), V(0, 32, 0)), False)
sketch19.addGeometry(Part.LineSegment(V(0, 32, 0), V(-6, 32, 0)), False)
sketch19.addConstraint(Sketcher.Constraint("Coincident", 0, 2, 1, 1))
sketch19.addConstraint(Sketcher.Constraint("Coincident", 1, 2, 2, 1))
sketch19.addConstraint(Sketcher.Constraint("Coincident", 2, 2, 3, 1))
sketch19.addConstraint(Sketcher.Constraint("Coincident", 3, 2, 0, 1))
sketch19.addConstraint(Sketcher.Constraint("Vertical", 0))
sketch19.addConstraint(Sketcher.Constraint("Horizontal", 1))
sketch19.addConstraint(Sketcher.Constraint("Vertical", 2))
sketch19.addConstraint(Sketcher.Constraint("Horizontal", 3))
sketch19.addConstraint(Sketcher.Constraint("PointOnObject", 1, 2, -2))
sketch19.addConstraint(Sketcher.Constraint("DistanceX", 1, 1, 1, 2, 6.0))
sketch19.addConstraint(Sketcher.Constraint("DistanceY", 0, 2, 0, 1, 7.0))
sketch19.addConstraint(Sketcher.Constraint("DistanceY", -1, 1, 0, 2, 25.0))
pad19 = body44.newObject("PartDesign::Pad", "Pad018")
pad19.Profile = sketch19
pad19.Length = 20
body45 = doc.addObject("PartDesign::Body", "Body044")

# Sketch on XY plane
sketch20 = body45.newObject("Sketcher::SketchObject", "Sketch019")
sketch20.AttachmentSupport = (doc.getObject("XY_Plane044"), [""])
sketch20.MapMode = "FlatFace"
sketch20.addGeometry(Part.LineSegment(V(24, 32, 0), V(24, 0, 0)), False)
sketch20.addGeometry(Part.LineSegment(V(24, 0, 0), V(30, 0, 0)), False)
sketch20.addGeometry(Part.LineSegment(V(30, 0, 0), V(30, 32, 0)), False)
sketch20.addGeometry(Part.LineSegment(V(30, 32, 0), V(24, 32, 0)), False)
sketch20.addConstraint(Sketcher.Constraint("Coincident", 0, 2, 1, 1))
sketch20.addConstraint(Sketcher.Constraint("Coincident", 1, 2, 2, 1))
sketch20.addConstraint(Sketcher.Constraint("Coincident", 2, 2, 3, 1))
sketch20.addConstraint(Sketcher.Constraint("Coincident", 3, 2, 0, 1))
sketch20.addConstraint(Sketcher.Constraint("Vertical", 0))
sketch20.addConstraint(Sketcher.Constraint("Horizontal", 1))
sketch20.addConstraint(Sketcher.Constraint("Vertical", 2))
sketch20.addConstraint(Sketcher.Constraint("Horizontal", 3))
sketch20.addConstraint(Sketcher.Constraint("PointOnObject", 0, 2, -1))
sketch20.addConstraint(Sketcher.Constraint("DistanceX", 1, 1, 1, 2, 6.0))
sketch20.addConstraint(Sketcher.Constraint("DistanceY", 0, 2, 0, 1, 32.0))
sketch20.addConstraint(Sketcher.Constraint("DistanceX", -1, 1, 0, 2, 24.0))
pad20 = body45.newObject("PartDesign::Pad", "Pad019")
pad20.Profile = sketch20
pad20.Length = 30
body46 = doc.addObject("PartDesign::Body", "Body045")

# Sketch on XY plane
sketch21 = body46.newObject("Sketcher::SketchObject", "Sketch020")
sketch21.AttachmentSupport = (doc.getObject("XY_Plane045"), [""])
sketch21.MapMode = "FlatFace"
sketch21.addGeometry(Part.LineSegment(V(0, 32, 0), V(0, 0, 0)), False)
sketch21.addGeometry(Part.LineSegment(V(0, 0, 0), V(24, 0, 0)), False)
sketch21.addGeometry(Part.LineSegment(V(24, 0, 0), V(24, 32, 0)), False)
sketch21.addGeometry(Part.LineSegment(V(24, 32, 0), V(0, 32, 0)), False)
sketch21.addConstraint(Sketcher.Constraint("Coincident", 0, 2, 1, 1))
sketch21.addConstraint(Sketcher.Constraint("Coincident", 1, 2, 2, 1))
sketch21.addConstraint(Sketcher.Constraint("Coincident", 2, 2, 3, 1))
sketch21.addConstraint(Sketcher.Constraint("Coincident", 3, 2, 0, 1))
sketch21.addConstraint(Sketcher.Constraint("Vertical", 0))
sketch21.addConstraint(Sketcher.Constraint("Horizontal", 1))
sketch21.addConstraint(Sketcher.Constraint("Vertical", 2))
sketch21.addConstraint(Sketcher.Constraint("Horizontal", 3))
sketch21.addConstraint(Sketcher.Constraint("Coincident", 0, 2, -1, 1))
sketch21.addConstraint(Sketcher.Constraint("DistanceX", 1, 1, 1, 2, 24.0))
sketch21.addConstraint(Sketcher.Constraint("DistanceY", 0, 2, 0, 1, 32.0))
pad21 = body46.newObject("PartDesign::Pad", "Pad020")
pad21.Profile = sketch21
pad21.Length = 25
doc.recompute()

boolean41 = body46.newObject("PartDesign::Boolean", "Boolean040")
boolean41.Type = "Fuse"
boolean41.addObjects([body38])
doc.recompute()

boolean42 = body46.newObject("PartDesign::Boolean", "Boolean041")
boolean42.Type = "Fuse"
boolean42.addObjects([body43])
doc.recompute()

boolean43 = body46.newObject("PartDesign::Boolean", "Boolean042")
boolean43.Type = "Fuse"
boolean43.addObjects([body44])
doc.recompute()

boolean44 = body46.newObject("PartDesign::Boolean", "Boolean043")
boolean44.Type = "Fuse"
boolean44.addObjects([body45])
doc.recompute()

fillet = body46.newObject("PartDesign::Fillet", "Fillet")
fillet.Base = (boolean44, edges_at(boolean44, [(-6, 3.5, 0)]))
fillet.Radius = 4
doc.recompute()

fillet2 = body46.newObject("PartDesign::Fillet", "Fillet001")
fillet2.Base = (fillet, edges_at(fillet, [(14, 0, 0)]))
fillet2.Radius = 4
doc.recompute()

fillet3 = body46.newObject("PartDesign::Fillet", "Fillet002")
fillet3.Base = (fillet2, edges_at(fillet2, [(12, 32, 0)]))
fillet3.Radius = 4
doc.recompute()

fillet4 = body46.newObject("PartDesign::Fillet", "Fillet003")
fillet4.Base = (fillet3, edges_at(fillet3, [(-6, 26.5, 0)]))
fillet4.Radius = 4
doc.recompute()

boolean45 = body46.newObject("PartDesign::Boolean", "Boolean044")
boolean45.Type = "Cut"
boolean45.addObjects([body37])

doc.recompute()
